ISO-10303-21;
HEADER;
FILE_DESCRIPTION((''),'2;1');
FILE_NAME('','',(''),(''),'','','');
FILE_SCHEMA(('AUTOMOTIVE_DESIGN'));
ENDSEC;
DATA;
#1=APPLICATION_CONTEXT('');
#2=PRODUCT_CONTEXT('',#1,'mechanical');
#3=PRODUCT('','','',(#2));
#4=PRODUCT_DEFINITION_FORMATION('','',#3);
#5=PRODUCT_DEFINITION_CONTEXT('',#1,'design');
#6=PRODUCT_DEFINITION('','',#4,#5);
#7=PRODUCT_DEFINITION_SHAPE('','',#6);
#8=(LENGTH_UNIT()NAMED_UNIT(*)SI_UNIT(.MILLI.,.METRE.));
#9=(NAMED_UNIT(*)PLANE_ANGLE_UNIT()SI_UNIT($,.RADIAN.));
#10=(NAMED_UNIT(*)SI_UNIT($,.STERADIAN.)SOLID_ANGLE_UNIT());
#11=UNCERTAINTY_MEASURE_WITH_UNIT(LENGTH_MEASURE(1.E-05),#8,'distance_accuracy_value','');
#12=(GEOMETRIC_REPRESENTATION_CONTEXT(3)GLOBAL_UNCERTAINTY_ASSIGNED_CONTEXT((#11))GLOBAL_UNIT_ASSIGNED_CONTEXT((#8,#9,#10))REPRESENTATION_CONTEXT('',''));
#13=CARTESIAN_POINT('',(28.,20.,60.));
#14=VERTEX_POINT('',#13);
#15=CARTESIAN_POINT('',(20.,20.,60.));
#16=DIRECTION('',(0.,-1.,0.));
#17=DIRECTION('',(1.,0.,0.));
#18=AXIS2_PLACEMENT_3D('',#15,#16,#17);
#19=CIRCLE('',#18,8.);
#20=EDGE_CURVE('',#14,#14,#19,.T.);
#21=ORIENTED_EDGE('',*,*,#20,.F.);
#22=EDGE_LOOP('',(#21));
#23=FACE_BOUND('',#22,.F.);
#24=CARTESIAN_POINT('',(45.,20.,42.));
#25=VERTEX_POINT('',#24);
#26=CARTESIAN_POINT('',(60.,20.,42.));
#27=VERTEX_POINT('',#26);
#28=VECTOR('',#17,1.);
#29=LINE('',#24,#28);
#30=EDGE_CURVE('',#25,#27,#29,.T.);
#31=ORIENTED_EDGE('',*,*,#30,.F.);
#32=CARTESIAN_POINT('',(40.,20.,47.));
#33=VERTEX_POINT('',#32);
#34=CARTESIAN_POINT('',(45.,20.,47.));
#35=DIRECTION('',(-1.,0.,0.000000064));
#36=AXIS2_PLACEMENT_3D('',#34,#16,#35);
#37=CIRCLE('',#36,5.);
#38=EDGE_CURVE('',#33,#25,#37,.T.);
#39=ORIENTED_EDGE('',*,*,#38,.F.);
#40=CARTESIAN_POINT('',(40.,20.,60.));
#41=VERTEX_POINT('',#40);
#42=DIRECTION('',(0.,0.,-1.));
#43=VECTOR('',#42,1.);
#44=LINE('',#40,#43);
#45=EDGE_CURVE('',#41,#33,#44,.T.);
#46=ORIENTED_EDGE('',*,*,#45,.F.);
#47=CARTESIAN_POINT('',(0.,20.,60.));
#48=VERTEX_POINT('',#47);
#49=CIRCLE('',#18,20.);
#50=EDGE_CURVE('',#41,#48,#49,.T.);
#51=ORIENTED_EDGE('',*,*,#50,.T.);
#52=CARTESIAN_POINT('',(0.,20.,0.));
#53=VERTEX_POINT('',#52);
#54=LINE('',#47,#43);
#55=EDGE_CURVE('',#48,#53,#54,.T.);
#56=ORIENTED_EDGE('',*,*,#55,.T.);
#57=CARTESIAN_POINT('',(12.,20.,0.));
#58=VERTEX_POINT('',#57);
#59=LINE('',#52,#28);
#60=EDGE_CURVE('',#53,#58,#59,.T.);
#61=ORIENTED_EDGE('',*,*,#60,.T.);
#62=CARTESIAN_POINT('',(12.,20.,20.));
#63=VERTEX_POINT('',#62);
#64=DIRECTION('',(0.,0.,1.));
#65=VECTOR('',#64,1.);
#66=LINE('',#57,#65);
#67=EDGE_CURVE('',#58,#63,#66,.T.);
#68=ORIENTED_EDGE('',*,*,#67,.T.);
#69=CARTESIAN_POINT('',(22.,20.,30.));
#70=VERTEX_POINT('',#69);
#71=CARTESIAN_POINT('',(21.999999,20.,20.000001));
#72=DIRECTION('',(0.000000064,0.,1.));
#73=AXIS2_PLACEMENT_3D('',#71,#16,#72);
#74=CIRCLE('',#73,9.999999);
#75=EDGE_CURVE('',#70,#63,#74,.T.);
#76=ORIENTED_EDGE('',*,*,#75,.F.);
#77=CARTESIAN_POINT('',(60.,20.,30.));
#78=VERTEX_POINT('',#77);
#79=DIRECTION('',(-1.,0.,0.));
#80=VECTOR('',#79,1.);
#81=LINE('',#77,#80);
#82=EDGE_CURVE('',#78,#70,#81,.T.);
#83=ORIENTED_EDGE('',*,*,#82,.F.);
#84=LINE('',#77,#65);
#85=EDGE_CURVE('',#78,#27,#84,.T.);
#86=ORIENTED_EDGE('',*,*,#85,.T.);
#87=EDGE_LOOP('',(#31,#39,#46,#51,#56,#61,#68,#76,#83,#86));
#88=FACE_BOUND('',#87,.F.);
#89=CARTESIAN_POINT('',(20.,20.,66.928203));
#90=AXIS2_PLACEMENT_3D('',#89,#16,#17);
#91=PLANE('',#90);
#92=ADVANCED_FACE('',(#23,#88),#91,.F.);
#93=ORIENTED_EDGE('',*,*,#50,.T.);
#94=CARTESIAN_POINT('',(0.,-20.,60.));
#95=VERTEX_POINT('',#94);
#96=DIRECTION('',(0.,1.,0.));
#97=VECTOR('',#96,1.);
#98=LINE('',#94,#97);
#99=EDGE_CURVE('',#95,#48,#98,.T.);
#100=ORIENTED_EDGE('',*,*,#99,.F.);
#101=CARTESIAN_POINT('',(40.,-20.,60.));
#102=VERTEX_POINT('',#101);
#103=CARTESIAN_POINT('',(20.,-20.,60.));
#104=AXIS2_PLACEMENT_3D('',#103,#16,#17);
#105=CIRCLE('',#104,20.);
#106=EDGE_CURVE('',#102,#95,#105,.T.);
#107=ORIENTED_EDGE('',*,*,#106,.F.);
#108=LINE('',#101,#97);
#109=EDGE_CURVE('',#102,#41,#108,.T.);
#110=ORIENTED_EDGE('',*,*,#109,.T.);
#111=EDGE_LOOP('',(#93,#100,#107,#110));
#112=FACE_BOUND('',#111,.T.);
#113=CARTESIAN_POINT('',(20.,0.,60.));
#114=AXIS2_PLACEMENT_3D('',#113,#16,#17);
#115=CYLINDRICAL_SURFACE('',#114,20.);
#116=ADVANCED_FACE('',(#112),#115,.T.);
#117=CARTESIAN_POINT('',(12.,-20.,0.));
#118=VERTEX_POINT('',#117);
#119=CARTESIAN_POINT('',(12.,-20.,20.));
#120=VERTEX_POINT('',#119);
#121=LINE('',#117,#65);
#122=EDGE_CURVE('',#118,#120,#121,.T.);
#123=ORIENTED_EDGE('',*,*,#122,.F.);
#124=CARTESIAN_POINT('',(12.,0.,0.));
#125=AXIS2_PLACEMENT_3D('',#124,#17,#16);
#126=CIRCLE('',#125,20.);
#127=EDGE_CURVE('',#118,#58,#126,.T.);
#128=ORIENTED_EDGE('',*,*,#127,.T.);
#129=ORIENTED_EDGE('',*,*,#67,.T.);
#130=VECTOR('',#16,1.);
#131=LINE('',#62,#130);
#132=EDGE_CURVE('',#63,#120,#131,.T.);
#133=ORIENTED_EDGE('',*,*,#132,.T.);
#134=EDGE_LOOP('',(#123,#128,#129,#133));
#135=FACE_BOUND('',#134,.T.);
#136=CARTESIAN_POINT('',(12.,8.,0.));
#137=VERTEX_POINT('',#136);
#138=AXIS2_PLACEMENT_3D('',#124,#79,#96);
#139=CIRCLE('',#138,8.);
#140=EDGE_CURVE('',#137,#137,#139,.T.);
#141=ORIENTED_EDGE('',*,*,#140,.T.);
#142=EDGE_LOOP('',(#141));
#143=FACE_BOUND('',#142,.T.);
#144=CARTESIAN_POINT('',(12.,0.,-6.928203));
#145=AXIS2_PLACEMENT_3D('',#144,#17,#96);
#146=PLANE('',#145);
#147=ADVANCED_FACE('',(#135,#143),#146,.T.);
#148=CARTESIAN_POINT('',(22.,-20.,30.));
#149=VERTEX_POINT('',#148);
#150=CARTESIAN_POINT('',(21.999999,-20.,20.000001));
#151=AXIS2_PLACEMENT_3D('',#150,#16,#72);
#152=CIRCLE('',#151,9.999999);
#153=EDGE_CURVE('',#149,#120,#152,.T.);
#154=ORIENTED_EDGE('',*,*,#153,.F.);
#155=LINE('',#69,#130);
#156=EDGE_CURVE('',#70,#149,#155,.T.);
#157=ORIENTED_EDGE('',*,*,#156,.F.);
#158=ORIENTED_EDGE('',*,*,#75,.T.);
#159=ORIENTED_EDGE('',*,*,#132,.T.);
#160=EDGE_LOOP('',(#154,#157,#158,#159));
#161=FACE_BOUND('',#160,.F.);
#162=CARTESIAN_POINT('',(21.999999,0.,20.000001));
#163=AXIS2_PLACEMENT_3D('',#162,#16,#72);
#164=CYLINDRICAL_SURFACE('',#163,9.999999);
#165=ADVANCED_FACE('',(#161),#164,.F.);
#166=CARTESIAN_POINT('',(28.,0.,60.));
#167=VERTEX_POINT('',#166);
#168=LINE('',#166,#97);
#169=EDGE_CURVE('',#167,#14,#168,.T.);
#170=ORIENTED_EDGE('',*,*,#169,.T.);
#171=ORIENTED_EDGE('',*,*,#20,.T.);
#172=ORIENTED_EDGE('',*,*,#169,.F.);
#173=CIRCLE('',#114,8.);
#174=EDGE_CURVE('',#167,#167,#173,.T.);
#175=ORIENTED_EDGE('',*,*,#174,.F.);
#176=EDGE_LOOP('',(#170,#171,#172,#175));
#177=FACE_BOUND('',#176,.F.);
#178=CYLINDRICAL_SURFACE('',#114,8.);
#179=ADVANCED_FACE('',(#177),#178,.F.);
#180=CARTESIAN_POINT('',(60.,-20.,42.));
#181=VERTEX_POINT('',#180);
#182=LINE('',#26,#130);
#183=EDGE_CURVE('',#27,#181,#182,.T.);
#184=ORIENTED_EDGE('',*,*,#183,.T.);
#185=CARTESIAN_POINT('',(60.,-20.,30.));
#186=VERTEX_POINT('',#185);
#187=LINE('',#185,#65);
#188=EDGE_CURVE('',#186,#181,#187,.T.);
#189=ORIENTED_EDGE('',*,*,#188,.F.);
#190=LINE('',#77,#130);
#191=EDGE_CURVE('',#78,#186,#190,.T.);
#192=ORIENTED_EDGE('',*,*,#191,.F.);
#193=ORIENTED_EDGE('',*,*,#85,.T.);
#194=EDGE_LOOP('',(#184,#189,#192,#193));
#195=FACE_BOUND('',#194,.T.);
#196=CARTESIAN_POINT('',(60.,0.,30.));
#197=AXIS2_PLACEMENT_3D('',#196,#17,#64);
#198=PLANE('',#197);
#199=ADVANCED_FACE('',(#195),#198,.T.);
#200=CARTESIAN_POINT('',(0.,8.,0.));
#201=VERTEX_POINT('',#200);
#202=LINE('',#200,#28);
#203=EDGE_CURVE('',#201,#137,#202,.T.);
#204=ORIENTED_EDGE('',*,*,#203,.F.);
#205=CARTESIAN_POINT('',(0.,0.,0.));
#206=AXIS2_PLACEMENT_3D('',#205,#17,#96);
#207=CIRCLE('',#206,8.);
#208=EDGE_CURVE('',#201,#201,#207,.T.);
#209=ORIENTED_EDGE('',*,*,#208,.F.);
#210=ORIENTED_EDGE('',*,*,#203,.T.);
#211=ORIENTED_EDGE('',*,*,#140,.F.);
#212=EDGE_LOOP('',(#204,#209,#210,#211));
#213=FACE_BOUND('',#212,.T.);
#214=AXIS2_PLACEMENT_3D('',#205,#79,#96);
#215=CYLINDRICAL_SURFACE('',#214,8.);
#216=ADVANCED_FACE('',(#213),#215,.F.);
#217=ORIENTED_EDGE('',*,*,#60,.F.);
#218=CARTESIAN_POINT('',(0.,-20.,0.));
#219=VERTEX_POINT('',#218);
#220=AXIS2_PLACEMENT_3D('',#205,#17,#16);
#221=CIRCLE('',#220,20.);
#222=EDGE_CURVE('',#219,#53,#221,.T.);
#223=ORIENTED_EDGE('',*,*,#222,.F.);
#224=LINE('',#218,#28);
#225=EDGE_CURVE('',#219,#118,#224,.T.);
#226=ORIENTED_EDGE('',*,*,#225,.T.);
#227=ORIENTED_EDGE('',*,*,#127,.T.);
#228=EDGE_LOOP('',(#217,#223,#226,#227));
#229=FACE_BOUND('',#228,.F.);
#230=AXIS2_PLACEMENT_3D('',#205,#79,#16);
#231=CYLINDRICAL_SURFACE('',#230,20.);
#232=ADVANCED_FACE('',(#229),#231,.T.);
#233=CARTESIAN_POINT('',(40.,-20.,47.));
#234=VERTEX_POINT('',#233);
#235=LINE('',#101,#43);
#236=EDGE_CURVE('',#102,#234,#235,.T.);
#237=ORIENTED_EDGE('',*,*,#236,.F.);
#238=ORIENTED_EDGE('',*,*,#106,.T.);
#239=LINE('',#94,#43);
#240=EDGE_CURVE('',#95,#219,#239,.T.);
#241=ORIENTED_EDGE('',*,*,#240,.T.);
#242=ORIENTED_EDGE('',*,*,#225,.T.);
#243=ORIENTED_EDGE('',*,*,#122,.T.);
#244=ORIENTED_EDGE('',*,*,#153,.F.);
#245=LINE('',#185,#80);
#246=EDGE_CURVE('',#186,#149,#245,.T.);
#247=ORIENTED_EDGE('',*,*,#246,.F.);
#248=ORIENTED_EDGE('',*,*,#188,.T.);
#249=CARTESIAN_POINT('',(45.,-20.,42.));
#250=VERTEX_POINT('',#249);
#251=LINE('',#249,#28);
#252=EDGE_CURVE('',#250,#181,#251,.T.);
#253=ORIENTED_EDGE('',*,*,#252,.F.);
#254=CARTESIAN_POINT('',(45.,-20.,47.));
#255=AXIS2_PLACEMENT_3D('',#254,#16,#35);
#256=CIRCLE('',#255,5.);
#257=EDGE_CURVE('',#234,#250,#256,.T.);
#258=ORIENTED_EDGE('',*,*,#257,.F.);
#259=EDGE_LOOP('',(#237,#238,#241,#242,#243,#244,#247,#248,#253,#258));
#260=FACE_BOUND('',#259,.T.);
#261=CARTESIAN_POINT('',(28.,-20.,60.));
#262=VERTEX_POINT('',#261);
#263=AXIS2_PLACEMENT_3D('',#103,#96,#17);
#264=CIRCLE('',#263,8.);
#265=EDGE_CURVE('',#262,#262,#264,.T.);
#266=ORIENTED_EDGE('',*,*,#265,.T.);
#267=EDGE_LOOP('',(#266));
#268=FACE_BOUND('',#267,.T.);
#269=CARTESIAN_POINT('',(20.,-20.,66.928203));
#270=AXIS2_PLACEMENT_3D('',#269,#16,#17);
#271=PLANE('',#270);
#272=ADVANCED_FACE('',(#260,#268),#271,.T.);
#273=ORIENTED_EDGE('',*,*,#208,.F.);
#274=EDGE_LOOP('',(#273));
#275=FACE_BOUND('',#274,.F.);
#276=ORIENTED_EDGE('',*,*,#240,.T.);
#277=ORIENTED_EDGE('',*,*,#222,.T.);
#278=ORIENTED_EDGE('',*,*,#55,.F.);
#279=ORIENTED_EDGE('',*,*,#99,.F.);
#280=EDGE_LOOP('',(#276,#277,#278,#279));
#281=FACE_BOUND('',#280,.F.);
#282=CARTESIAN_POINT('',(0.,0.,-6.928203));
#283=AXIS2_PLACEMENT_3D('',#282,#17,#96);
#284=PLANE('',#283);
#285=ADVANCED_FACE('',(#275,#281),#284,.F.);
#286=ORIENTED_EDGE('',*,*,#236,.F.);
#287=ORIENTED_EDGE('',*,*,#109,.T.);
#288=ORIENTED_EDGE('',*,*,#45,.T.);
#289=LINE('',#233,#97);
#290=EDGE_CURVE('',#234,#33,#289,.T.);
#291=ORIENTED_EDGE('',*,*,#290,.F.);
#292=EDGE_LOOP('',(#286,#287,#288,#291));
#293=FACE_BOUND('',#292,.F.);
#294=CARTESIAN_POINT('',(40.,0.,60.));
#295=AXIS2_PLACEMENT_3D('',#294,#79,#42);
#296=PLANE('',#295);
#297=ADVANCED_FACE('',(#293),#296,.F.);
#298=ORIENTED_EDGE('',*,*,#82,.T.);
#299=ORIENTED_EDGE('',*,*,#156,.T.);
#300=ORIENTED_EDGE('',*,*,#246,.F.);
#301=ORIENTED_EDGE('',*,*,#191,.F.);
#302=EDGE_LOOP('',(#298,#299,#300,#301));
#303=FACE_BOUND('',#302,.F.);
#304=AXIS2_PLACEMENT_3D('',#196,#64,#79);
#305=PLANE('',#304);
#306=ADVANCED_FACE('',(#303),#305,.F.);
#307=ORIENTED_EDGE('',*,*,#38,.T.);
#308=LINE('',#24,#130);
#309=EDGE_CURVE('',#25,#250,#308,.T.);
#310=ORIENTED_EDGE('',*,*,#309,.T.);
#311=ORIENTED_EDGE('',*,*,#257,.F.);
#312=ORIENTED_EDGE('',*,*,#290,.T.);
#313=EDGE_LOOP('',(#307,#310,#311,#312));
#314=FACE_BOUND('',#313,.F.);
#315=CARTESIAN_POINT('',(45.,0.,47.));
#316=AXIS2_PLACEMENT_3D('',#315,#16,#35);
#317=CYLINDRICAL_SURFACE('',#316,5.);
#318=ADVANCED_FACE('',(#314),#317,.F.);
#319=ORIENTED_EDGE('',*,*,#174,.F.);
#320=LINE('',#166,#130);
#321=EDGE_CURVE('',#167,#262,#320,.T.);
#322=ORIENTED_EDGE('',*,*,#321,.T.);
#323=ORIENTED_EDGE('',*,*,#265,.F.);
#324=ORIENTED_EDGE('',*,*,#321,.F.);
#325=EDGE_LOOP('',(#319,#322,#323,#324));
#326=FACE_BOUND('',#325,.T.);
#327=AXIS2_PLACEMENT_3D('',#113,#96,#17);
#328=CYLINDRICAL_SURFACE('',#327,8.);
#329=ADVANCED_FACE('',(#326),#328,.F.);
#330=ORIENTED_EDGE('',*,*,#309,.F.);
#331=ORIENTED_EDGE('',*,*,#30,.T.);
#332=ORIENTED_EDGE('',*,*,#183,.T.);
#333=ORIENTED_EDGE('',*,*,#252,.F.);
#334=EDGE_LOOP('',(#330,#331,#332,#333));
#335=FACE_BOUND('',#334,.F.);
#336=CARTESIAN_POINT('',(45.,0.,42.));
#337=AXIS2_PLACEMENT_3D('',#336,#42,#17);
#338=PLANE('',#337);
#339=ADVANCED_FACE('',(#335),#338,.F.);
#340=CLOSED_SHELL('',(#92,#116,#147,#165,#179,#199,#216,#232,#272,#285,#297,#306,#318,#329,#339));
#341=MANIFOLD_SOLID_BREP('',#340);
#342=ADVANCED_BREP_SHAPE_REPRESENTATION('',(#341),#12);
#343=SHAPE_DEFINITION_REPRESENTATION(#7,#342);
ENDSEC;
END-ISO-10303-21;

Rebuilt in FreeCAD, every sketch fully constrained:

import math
import FreeCAD as App
import Part
import Sketcher
from FreeCAD import Vector

doc = App.newDocument("Part")
body = doc.addObject("PartDesign::Body", "Body")

sketch1 = body.newObject("Sketcher::SketchObject", "Sketch")
sketch1.AttachmentSupport = (doc.getObject("XZ_Plane"), [""])
sketch1.MapMode = "FlatFace"
sketch1.addGeometry([
    Part.LineSegment(Vector(0, 60, 0), Vector(0, 0, 0)),
    Part.LineSegment(Vector(0, 0, 0), Vector(12, 0, 0)),
    Part.LineSegment(Vector(12, 0, 0), Vector(12, 20, 0)),
    Part.ArcOfCircle(Part.Circle(Vector(21.999999, 20.000001, 0), Vector(0, 0, 1), 9.999999), math.radians(89.999996), math.radians(180.000004)),
    Part.LineSegment(Vector(22, 30, 0), Vector(60, 30, 0)),
    Part.LineSegment(Vector(60, 30, 0), Vector(60, 42, 0)),
    Part.LineSegment(Vector(60, 42, 0), Vector(45, 42, 0)),
    Part.ArcOfCircle(Part.Circle(Vector(45, 47, 0), Vector(0, 0, 1), 5), math.radians(179.999996), math.radians(270.000004)),
    Part.LineSegment(Vector(40, 47, 0), Vector(40, 60, 0)),
    Part.LineSegment(Vector(40, 60, 0), Vector(0, 60, 0)),
], False)
sketch1.addConstraint([
    Sketcher.Constraint("Coincident", 0, 2, 1, 1),
    Sketcher.Constraint("Coincident", 1, 2, 2, 1),
    Sketcher.Constraint("Tangent", 2, 2, 3, 2),
    Sketcher.Constraint("Tangent", 3, 1, 4, 1),
    Sketcher.Constraint("Coincident", 4, 2, 5, 1),
    Sketcher.Constraint("Coincident", 5, 2, 6, 1),
    Sketcher.Constraint("Tangent", 6, 2, 7, 2),
    Sketcher.Constraint("Tangent", 7, 1, 8, 1),
    Sketcher.Constraint("Coincident", 8, 2, 9, 1),
    Sketcher.Constraint("Coincident", 9, 2, 0, 1),
    Sketcher.Constraint("Vertical", 0),
    Sketcher.Constraint("Horizontal", 1),
    Sketcher.Constraint("Vertical", 2),
    Sketcher.Constraint("Horizontal", 4),
    Sketcher.Constraint("Vertical", 5),
    Sketcher.Constraint("Horizontal", 6),
    Sketcher.Constraint("Vertical", 8),
    Sketcher.Constraint("Horizontal", 9),
    Sketcher.Constraint("Coincident", 0, 2, -1, 1),
    Sketcher.Constraint("Equal", 1, 5),
    Sketcher.Constraint("Radius", 3, 9.999999),
    Sketcher.Constraint("Radius", 7, 5.0),
    Sketcher.Constraint("DistanceX", 1, 1, 1, 2, 12.0),
    Sketcher.Constraint("DistanceX", 4, 1, 4, 2, 38.0),
    Sketcher.Constraint("DistanceX", 6, 2, 6, 1, 15.0),
    Sketcher.Constraint("DistanceY", 0, 2, 0, 1, 60.0),
    Sketcher.Constraint("DistanceY", 2, 1, 2, 2, 20.0),
])
pad1 = body.newObject("PartDesign::Pad", "Pad")
pad1.Profile = sketch1
pad1.Length = 40
pad1.Midplane = True

sketch2 = body.newObject("Sketcher::SketchObject", "Sketch001")
sketch2.AttachmentSupport = (doc.getObject("XZ_Plane"), [""])
sketch2.MapMode = "FlatFace"
sketch2.addGeometry([
    Part.ArcOfCircle(Part.Circle(Vector(20, 60, 0), Vector(0, 0, 1), 20), math.radians(0), math.radians(180)),
    Part.LineSegment(Vector(0, 60, 0), Vector(40, 60, 0)),
], False)
sketch2.addConstraint([
    Sketcher.Constraint("Coincident", 0, 1, 1, 2),
    Sketcher.Constraint("Coincident", 1, 1, 0, 2),
    Sketcher.Constraint("Horizontal", 1),
    Sketcher.Constraint("PointOnObject", 1, 1, -2),
    Sketcher.Constraint("Radius", 0, 20.0),
    Sketcher.Constraint("DistanceY", -1, 1, 0, 3, 60.0),
    Sketcher.Constraint("DistanceY", -1, 1, 0, 1, 60.0),
])
pad2 = body.newObject("PartDesign::Pad", "Pad001")
pad2.Profile = sketch2
pad2.Length = 40
pad2.Midplane = True

sketch3 = body.newObject("Sketcher::SketchObject", "Sketch002")
sketch3.AttachmentSupport = (doc.getObject("YZ_Plane"), [""])
sketch3.MapMode = "FlatFace"
sketch3.addGeometry([
    Part.ArcOfCircle(Part.Circle(Vector(0, 0, 0), Vector(0, 0, 1), 20), math.radians(180), math.radians(360)),
    Part.LineSegment(Vector(20, 0, 0), Vector(-20, 0, 0)),
], False)
sketch3.addConstraint([
    Sketcher.Constraint("Coincident", 0, 1, 1, 2),
    Sketcher.Constraint("Coincident", 1, 1, 0, 2),
    Sketcher.Constraint("Horizontal", 1),
    Sketcher.Constraint("Coincident", 0, 3, -1, 1),
    Sketcher.Constraint("PointOnObject", 0, 1, -1),
    Sketcher.Constraint("Radius", 0, 20.0),
])
pad3 = body.newObject("PartDesign::Pad", "Pad002")
pad3.Profile = sketch3
pad3.Length = 12

sketch4 = body.newObject("Sketcher::SketchObject", "Sketch003")
sketch4.AttachmentSupport = (doc.getObject("XZ_Plane"), [""])
sketch4.MapMode = "FlatFace"
sketch4.addGeometry(Part.Circle(Vector(20, 60, 0), Vector(0, 0, 1), 8), False)
sketch4.addConstraint([
    Sketcher.Constraint("Diameter", 0, 16.0),
    Sketcher.Constraint("DistanceX", -1, 1, 0, 3, 20.0),
    Sketcher.Constraint("DistanceY", -1, 1, 0, 3, 60.0),
])
pocket1 = body.newObject("PartDesign::Pocket", "Pocket")
pocket1.Profile = sketch4
pocket1.Type = "ThroughAll"
pocket1.Midplane = True

sketch5 = body.newObject("Sketcher::SketchObject", "Sketch004")
sketch5.AttachmentSupport = (doc.getObject("YZ_Plane"), [""])
sketch5.MapMode = "FlatFace"
sketch5.addGeometry(Part.Circle(Vector(0, 0, 0), Vector(0, 0, 1), 8), False)
sketch5.addConstraint([
    Sketcher.Constraint("Coincident", 0, 3, -1, 1),
    Sketcher.Constraint("Diameter", 0, 16.0),
])
pocket2 = body.newObject("PartDesign::Pocket", "Pocket001")
pocket2.Profile = sketch5
pocket2.Type = "ThroughAll"
pocket2.Midplane = True

doc.recompute()
